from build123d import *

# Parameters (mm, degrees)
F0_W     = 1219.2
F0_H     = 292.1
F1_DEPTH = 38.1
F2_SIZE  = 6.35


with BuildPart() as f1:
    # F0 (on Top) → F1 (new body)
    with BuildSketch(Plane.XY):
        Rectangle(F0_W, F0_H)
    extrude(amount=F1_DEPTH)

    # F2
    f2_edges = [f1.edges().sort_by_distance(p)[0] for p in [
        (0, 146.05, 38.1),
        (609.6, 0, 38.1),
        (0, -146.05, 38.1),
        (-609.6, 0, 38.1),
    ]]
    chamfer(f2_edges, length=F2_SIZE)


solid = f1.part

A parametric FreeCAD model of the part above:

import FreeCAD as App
import Part
import Sketcher
from FreeCAD import Vector
Q = App.Units.Quantity


def edges_at(feature, points):
    """Names of the edges that pass closest to the given points."""
    edges = feature.Shape.Edges
    near = lambda p: min(range(len(edges)), key=lambda i: edges[i].distToShape(Part.Vertex(*p))[0])
    return sorted({f"Edge{near(p) + 1}" for p in points})


def add_polygon(sketch, points):
    """Adds a closed chain of lines whose ends are joined by coincident constraints."""
    first, n = sketch.GeometryCount, len(points)
    for a, b in zip(points, points[1:] + points[:1]):
        sketch.addGeometry(Part.LineSegment(App.Vector(*a, 0), App.Vector(*b, 0)), False)
    for i in range(n):
        sketch.addConstraint(Sketcher.Constraint("Coincident", first + i, 2, first + (i + 1) % n, 1))

doc = App.newDocument("Part")
params = doc.addObject("Spreadsheet::Sheet", "Params")
for row, (alias, value) in enumerate([
    ("sketch1_width", "48 in"),
    ("sketch1_height", "11.5 in"),
    ("pad1_length", "1.5 in"),
    ("chamfer_size", "0.25 in"),
], start=1):
    params.set(f"A{row}", alias)
    params.set(f"B{row}", "=" + value)
    params.setAlias(f"B{row}", alias)

body = doc.addObject("PartDesign::Body", "Body")

# Sketch on XY plane
sketch1 = doc.addObject("Sketcher::SketchObject", "Sketch")
body.addObject(sketch1)
sketch1.AttachmentSupport = (doc.XY_Plane, [""])
sketch1.MapMode = "FlatFace"
add_polygon(sketch1, [(-610, 146), (-610, -146), (610, -146), (610, 146)])  # lines 0-3
sketch1.addConstraint(Sketcher.Constraint("Vertical", 0))
sketch1.addConstraint(Sketcher.Constraint("Horizontal", 1))
sketch1.addConstraint(Sketcher.Constraint("Vertical", 2))
sketch1.addConstraint(Sketcher.Constraint("Horizontal", 3))
sketch1.addConstraint(Sketcher.Constraint("Symmetric", 0, 2, 2, 2, -1, 1))
sketch1.addConstraint(Sketcher.Constraint("DistanceX", 1, 1, 1, 2, Q("48 in")))
sketch1.addConstraint(Sketcher.Constraint("DistanceY", 0, 2, 0, 1, Q("11.5 in")))
sketch1.setExpression("Constraints[9]", "Params.sketch1_width")
sketch1.setExpression("Constraints[10]", "Params.sketch1_height")
pad1 = doc.addObject("PartDesign::Pad", "Pad")
body.addObject(pad1)
pad1.Profile = sketch1
pad1.setExpression("Length", "Params.pad1_length")
doc.recompute()

chamfer = doc.addObject("PartDesign::Chamfer", "Chamfer")
body.addObject(chamfer)
chamfer.Base = (pad1, edges_at(pad1, [
    (0, 146.05, 38.1),
    (609.6, 0, 38.1),
    (0, -146.05, 38.1),
    (-609.6, 0, 38.1),
]))
chamfer.setExpression("Size", "Params.chamfer_size")

doc.recompute()
